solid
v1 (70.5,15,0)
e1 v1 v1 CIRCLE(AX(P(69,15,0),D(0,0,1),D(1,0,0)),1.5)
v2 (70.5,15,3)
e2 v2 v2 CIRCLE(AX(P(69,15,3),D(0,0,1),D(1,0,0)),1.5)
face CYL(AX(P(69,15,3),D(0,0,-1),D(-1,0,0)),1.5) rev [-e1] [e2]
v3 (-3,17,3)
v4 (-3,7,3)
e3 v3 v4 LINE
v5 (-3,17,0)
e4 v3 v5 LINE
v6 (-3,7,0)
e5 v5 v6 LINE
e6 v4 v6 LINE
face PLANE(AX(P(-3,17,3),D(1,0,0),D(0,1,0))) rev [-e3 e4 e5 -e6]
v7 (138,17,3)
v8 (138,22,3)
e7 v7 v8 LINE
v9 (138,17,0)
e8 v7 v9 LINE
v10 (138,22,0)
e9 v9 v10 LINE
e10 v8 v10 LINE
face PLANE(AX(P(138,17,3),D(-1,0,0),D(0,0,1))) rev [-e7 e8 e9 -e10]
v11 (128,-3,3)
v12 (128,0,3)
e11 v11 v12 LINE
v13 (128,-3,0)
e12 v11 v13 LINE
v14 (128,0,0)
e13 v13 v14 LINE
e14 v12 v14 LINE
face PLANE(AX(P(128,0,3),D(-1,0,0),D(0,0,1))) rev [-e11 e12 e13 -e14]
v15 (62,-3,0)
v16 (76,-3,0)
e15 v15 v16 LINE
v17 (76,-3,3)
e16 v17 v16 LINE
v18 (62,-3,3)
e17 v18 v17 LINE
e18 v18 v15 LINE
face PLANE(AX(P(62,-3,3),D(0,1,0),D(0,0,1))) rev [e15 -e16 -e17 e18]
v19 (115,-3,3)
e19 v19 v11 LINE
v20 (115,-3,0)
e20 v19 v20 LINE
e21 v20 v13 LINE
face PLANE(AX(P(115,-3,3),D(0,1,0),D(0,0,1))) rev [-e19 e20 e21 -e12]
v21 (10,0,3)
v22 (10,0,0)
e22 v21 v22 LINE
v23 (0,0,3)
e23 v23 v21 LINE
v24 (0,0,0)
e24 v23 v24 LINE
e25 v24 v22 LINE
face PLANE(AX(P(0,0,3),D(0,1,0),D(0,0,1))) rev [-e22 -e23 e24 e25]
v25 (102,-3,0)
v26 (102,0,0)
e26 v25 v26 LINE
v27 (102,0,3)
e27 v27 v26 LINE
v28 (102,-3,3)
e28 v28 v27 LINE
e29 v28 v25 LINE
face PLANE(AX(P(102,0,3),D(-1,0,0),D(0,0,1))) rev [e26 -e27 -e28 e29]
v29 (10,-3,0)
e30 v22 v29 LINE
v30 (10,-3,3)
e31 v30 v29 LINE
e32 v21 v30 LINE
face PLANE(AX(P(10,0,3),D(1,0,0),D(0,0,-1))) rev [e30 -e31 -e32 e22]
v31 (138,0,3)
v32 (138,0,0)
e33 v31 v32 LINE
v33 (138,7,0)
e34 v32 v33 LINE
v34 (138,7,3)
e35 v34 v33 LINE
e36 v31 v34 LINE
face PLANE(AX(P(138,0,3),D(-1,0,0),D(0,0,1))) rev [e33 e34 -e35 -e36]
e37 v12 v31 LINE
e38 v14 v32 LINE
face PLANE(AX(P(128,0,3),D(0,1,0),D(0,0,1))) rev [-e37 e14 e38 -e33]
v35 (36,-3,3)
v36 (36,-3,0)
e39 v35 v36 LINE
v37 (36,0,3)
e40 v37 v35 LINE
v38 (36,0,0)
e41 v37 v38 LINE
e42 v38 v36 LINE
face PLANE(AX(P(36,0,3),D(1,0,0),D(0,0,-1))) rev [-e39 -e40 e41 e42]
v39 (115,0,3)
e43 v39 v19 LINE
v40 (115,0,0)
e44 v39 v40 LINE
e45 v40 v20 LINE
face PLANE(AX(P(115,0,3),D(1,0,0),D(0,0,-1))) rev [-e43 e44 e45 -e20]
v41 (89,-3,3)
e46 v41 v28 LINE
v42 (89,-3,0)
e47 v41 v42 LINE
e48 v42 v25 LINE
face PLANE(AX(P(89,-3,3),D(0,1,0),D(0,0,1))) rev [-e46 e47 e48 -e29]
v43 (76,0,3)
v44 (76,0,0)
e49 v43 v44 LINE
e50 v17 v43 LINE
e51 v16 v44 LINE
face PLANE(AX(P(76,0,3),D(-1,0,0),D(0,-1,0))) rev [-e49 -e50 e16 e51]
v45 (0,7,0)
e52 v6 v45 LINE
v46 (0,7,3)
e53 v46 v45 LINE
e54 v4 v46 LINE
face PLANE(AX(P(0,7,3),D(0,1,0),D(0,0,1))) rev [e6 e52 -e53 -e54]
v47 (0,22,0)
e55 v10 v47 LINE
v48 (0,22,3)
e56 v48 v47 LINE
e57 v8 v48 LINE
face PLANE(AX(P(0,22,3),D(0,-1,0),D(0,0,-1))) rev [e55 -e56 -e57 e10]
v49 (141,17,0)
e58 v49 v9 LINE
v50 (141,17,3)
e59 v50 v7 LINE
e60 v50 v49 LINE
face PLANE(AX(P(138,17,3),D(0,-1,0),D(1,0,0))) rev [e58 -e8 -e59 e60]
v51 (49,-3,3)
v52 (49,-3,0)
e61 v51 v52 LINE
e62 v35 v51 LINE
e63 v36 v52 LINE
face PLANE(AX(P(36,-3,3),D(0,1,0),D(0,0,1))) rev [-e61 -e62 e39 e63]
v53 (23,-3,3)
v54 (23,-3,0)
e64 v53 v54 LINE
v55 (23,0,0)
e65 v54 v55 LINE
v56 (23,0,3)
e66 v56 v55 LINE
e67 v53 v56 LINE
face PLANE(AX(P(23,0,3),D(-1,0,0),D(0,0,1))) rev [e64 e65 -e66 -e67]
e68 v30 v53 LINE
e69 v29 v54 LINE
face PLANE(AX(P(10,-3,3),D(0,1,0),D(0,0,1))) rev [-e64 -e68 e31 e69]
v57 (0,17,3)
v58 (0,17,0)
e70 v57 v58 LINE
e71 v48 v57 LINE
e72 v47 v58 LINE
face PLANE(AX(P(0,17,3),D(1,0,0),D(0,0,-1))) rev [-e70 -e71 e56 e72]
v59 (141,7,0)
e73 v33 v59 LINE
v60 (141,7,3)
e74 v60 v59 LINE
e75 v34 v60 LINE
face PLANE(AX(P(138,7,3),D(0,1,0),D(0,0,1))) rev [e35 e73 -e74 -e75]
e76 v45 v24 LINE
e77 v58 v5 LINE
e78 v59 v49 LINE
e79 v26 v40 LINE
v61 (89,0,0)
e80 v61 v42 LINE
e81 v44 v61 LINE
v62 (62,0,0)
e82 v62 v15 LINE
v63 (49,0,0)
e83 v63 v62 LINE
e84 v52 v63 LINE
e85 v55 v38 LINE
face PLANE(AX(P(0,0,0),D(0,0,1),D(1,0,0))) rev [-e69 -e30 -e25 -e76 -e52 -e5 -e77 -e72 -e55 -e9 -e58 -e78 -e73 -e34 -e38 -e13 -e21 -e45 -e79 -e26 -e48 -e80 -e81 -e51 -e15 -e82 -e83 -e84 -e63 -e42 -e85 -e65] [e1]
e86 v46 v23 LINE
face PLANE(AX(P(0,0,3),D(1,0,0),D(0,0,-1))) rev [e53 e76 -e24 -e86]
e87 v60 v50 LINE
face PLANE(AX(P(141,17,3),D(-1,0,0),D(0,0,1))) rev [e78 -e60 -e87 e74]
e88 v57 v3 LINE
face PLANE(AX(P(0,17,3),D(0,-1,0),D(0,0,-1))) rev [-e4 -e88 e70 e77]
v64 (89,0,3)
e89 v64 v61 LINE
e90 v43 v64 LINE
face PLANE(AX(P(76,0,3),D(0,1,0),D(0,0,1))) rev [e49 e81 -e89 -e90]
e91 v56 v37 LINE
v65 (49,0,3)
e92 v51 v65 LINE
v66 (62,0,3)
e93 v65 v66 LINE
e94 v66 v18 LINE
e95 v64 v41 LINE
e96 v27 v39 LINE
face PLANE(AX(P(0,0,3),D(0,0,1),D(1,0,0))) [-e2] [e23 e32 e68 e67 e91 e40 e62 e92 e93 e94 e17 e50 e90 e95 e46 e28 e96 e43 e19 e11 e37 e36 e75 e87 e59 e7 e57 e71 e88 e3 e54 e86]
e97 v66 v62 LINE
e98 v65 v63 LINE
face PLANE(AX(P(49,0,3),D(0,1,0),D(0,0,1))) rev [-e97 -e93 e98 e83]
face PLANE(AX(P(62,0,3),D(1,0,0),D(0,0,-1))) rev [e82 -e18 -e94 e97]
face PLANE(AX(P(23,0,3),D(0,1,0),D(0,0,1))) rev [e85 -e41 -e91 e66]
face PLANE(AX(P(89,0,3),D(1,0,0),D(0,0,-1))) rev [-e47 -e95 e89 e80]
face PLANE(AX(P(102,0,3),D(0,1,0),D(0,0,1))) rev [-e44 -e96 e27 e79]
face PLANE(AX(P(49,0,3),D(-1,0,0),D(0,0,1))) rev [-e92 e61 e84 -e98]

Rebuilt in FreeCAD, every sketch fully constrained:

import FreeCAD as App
import Part
import Sketcher

V = App.Vector
Q = App.Units.Quantity


def add_polygon(sketch, points):
    """Adds a closed chain of lines whose ends are joined by coincident constraints."""
    first, n = sketch.GeometryCount, len(points)
    for a, b in zip(points, points[1:] + points[:1]):
        sketch.addGeometry(Part.LineSegment(App.Vector(*a, 0), App.Vector(*b, 0)), False)
    for i in range(n):
        sketch.addConstraint(Sketcher.Constraint("Coincident", first + i, 2, first + (i + 1) % n, 1))

doc = App.newDocument("Part")
body = doc.addObject("PartDesign::Body", "Body")

# Sketch on XY plane
sketch1 = body.newObject("Sketcher::SketchObject", "Sketch")
sketch1.AttachmentSupport = (doc.getObject("XY_Plane"), [""])
sketch1.MapMode = "FlatFace"
add_polygon(sketch1, [(0, 22), (0, 17), (-3, 17), (-3, 7), (0, 7), (0, 0), (10, 0), (10, -3), (23, -3), (23, 0), (36, 0), (36, -3), (49, -3), (49, 0), (62, 0), (62, -3), (76, -3), (76, 0), (89, 0), (89, -3), (102, -3), (102, 0), (115, 0), (115, -3), (128, -3), (128, 0), (138, 0), (138, 7), (141, 7), (141, 17), (138, 17), (138, 22)])  # lines 0-31
sketch1.addGeometry(Part.Circle(V(69, 15, 0), V(0, 0, 1), 1.5), False)  # 32
sketch1.addConstraint([
    Sketcher.Constraint("Vertical", 0),
    Sketcher.Constraint("Horizontal", 1),
    Sketcher.Constraint("Vertical", 2),
    Sketcher.Constraint("Horizontal", 3),
    Sketcher.Constraint("Vertical", 4),
    Sketcher.Constraint("Horizontal", 5),
    Sketcher.Constraint("Vertical", 6),
    Sketcher.Constraint("Horizontal", 7),
    Sketcher.Constraint("Vertical", 8),
    Sketcher.Constraint("Horizontal", 9),
    Sketcher.Constraint("Vertical", 10),
    Sketcher.Constraint("Horizontal", 11),
    Sketcher.Constraint("Vertical", 12),
    Sketcher.Constraint("Horizontal", 13),
    Sketcher.Constraint("Vertical", 14),
    Sketcher.Constraint("Horizontal", 15),
    Sketcher.Constraint("Vertical", 16),
    Sketcher.Constraint("Horizontal", 17),
    Sketcher.Constraint("Vertical", 18),
    Sketcher.Constraint("Horizontal", 19),
    Sketcher.Constraint("Vertical", 20),
    Sketcher.Constraint("Horizontal", 21),
    Sketcher.Constraint("Vertical", 22),
    Sketcher.Constraint("Horizontal", 23),
    Sketcher.Constraint("Vertical", 24),
    Sketcher.Constraint("Horizontal", 25),
    Sketcher.Constraint("Vertical", 26),
    Sketcher.Constraint("Horizontal", 27),
    Sketcher.Constraint("Vertical", 28),
    Sketcher.Constraint("Horizontal", 29),
    Sketcher.Constraint("Vertical", 30),
    Sketcher.Constraint("Horizontal", 31),
    Sketcher.Constraint("Coincident", 4, 2, -1, 1),
    Sketcher.Constraint("PointOnObject", 0, 2, -2),
    Sketcher.Constraint("PointOnObject", 8, 2, -1),
    Sketcher.Constraint("PointOnObject", 12, 2, -1),
    Sketcher.Constraint("PointOnObject", 16, 2, -1),
    Sketcher.Constraint("PointOnObject", 20, 2, -1),
    Sketcher.Constraint("PointOnObject", 24, 2, -1),
    Sketcher.Constraint("Horizontal", 7, 2, 10, 2),
    Sketcher.Constraint("Horizontal", 11, 2, 14, 2),
    Sketcher.Constraint("Horizontal", 15, 2, 18, 2),
    Sketcher.Constraint("Horizontal", 19, 2, 22, 2),
    Sketcher.Constraint("Horizontal", 3, 2, 26, 2),
    Sketcher.Constraint("Horizontal", 1, 2, 28, 2),
    Sketcher.Constraint("Vertical", 26, 2, 29, 2),
    Sketcher.Constraint("Equal", 7, 9),
    Sketcher.Constraint("Equal", 9, 11),
    Sketcher.Constraint("Equal", 11, 13),
    Sketcher.Constraint("Equal", 13, 17),
    Sketcher.Constraint("Equal", 17, 19),
    Sketcher.Constraint("Equal", 19, 21),
    Sketcher.Constraint("Equal", 21, 23),
    Sketcher.Constraint("Equal", 5, 25),
    Sketcher.Constraint("Equal", 3, 27),
    Sketcher.Constraint("Equal", 25, 2),
    Sketcher.Constraint("Equal", 29, 6),
    Sketcher.Constraint("Diameter", 32, Q("3 mm")),
    Sketcher.Constraint("DistanceX", 1, 2, 1, 1, Q("3 mm")),
    Sketcher.Constraint("DistanceX", 5, 1, 5, 2, Q("10 mm")),
    Sketcher.Constraint("DistanceX", 7, 1, 7, 2, Q("13 mm")),
    Sketcher.Constraint("DistanceX", 15, 1, 15, 2, Q("14 mm")),
    Sketcher.Constraint("DistanceY", 0, 2, 0, 1, Q("5 mm")),
    Sketcher.Constraint("DistanceY", 4, 2, 4, 1, Q("7 mm")),
    Sketcher.Constraint("DistanceX", -1, 1, 32, 3, Q("69 mm")),
    Sketcher.Constraint("DistanceY", -1, 1, 32, 3, Q("15 mm")),
])
pad1 = body.newObject("PartDesign::Pad", "Pad")
pad1.Profile = sketch1
pad1.Length = 3

doc.recompute()
